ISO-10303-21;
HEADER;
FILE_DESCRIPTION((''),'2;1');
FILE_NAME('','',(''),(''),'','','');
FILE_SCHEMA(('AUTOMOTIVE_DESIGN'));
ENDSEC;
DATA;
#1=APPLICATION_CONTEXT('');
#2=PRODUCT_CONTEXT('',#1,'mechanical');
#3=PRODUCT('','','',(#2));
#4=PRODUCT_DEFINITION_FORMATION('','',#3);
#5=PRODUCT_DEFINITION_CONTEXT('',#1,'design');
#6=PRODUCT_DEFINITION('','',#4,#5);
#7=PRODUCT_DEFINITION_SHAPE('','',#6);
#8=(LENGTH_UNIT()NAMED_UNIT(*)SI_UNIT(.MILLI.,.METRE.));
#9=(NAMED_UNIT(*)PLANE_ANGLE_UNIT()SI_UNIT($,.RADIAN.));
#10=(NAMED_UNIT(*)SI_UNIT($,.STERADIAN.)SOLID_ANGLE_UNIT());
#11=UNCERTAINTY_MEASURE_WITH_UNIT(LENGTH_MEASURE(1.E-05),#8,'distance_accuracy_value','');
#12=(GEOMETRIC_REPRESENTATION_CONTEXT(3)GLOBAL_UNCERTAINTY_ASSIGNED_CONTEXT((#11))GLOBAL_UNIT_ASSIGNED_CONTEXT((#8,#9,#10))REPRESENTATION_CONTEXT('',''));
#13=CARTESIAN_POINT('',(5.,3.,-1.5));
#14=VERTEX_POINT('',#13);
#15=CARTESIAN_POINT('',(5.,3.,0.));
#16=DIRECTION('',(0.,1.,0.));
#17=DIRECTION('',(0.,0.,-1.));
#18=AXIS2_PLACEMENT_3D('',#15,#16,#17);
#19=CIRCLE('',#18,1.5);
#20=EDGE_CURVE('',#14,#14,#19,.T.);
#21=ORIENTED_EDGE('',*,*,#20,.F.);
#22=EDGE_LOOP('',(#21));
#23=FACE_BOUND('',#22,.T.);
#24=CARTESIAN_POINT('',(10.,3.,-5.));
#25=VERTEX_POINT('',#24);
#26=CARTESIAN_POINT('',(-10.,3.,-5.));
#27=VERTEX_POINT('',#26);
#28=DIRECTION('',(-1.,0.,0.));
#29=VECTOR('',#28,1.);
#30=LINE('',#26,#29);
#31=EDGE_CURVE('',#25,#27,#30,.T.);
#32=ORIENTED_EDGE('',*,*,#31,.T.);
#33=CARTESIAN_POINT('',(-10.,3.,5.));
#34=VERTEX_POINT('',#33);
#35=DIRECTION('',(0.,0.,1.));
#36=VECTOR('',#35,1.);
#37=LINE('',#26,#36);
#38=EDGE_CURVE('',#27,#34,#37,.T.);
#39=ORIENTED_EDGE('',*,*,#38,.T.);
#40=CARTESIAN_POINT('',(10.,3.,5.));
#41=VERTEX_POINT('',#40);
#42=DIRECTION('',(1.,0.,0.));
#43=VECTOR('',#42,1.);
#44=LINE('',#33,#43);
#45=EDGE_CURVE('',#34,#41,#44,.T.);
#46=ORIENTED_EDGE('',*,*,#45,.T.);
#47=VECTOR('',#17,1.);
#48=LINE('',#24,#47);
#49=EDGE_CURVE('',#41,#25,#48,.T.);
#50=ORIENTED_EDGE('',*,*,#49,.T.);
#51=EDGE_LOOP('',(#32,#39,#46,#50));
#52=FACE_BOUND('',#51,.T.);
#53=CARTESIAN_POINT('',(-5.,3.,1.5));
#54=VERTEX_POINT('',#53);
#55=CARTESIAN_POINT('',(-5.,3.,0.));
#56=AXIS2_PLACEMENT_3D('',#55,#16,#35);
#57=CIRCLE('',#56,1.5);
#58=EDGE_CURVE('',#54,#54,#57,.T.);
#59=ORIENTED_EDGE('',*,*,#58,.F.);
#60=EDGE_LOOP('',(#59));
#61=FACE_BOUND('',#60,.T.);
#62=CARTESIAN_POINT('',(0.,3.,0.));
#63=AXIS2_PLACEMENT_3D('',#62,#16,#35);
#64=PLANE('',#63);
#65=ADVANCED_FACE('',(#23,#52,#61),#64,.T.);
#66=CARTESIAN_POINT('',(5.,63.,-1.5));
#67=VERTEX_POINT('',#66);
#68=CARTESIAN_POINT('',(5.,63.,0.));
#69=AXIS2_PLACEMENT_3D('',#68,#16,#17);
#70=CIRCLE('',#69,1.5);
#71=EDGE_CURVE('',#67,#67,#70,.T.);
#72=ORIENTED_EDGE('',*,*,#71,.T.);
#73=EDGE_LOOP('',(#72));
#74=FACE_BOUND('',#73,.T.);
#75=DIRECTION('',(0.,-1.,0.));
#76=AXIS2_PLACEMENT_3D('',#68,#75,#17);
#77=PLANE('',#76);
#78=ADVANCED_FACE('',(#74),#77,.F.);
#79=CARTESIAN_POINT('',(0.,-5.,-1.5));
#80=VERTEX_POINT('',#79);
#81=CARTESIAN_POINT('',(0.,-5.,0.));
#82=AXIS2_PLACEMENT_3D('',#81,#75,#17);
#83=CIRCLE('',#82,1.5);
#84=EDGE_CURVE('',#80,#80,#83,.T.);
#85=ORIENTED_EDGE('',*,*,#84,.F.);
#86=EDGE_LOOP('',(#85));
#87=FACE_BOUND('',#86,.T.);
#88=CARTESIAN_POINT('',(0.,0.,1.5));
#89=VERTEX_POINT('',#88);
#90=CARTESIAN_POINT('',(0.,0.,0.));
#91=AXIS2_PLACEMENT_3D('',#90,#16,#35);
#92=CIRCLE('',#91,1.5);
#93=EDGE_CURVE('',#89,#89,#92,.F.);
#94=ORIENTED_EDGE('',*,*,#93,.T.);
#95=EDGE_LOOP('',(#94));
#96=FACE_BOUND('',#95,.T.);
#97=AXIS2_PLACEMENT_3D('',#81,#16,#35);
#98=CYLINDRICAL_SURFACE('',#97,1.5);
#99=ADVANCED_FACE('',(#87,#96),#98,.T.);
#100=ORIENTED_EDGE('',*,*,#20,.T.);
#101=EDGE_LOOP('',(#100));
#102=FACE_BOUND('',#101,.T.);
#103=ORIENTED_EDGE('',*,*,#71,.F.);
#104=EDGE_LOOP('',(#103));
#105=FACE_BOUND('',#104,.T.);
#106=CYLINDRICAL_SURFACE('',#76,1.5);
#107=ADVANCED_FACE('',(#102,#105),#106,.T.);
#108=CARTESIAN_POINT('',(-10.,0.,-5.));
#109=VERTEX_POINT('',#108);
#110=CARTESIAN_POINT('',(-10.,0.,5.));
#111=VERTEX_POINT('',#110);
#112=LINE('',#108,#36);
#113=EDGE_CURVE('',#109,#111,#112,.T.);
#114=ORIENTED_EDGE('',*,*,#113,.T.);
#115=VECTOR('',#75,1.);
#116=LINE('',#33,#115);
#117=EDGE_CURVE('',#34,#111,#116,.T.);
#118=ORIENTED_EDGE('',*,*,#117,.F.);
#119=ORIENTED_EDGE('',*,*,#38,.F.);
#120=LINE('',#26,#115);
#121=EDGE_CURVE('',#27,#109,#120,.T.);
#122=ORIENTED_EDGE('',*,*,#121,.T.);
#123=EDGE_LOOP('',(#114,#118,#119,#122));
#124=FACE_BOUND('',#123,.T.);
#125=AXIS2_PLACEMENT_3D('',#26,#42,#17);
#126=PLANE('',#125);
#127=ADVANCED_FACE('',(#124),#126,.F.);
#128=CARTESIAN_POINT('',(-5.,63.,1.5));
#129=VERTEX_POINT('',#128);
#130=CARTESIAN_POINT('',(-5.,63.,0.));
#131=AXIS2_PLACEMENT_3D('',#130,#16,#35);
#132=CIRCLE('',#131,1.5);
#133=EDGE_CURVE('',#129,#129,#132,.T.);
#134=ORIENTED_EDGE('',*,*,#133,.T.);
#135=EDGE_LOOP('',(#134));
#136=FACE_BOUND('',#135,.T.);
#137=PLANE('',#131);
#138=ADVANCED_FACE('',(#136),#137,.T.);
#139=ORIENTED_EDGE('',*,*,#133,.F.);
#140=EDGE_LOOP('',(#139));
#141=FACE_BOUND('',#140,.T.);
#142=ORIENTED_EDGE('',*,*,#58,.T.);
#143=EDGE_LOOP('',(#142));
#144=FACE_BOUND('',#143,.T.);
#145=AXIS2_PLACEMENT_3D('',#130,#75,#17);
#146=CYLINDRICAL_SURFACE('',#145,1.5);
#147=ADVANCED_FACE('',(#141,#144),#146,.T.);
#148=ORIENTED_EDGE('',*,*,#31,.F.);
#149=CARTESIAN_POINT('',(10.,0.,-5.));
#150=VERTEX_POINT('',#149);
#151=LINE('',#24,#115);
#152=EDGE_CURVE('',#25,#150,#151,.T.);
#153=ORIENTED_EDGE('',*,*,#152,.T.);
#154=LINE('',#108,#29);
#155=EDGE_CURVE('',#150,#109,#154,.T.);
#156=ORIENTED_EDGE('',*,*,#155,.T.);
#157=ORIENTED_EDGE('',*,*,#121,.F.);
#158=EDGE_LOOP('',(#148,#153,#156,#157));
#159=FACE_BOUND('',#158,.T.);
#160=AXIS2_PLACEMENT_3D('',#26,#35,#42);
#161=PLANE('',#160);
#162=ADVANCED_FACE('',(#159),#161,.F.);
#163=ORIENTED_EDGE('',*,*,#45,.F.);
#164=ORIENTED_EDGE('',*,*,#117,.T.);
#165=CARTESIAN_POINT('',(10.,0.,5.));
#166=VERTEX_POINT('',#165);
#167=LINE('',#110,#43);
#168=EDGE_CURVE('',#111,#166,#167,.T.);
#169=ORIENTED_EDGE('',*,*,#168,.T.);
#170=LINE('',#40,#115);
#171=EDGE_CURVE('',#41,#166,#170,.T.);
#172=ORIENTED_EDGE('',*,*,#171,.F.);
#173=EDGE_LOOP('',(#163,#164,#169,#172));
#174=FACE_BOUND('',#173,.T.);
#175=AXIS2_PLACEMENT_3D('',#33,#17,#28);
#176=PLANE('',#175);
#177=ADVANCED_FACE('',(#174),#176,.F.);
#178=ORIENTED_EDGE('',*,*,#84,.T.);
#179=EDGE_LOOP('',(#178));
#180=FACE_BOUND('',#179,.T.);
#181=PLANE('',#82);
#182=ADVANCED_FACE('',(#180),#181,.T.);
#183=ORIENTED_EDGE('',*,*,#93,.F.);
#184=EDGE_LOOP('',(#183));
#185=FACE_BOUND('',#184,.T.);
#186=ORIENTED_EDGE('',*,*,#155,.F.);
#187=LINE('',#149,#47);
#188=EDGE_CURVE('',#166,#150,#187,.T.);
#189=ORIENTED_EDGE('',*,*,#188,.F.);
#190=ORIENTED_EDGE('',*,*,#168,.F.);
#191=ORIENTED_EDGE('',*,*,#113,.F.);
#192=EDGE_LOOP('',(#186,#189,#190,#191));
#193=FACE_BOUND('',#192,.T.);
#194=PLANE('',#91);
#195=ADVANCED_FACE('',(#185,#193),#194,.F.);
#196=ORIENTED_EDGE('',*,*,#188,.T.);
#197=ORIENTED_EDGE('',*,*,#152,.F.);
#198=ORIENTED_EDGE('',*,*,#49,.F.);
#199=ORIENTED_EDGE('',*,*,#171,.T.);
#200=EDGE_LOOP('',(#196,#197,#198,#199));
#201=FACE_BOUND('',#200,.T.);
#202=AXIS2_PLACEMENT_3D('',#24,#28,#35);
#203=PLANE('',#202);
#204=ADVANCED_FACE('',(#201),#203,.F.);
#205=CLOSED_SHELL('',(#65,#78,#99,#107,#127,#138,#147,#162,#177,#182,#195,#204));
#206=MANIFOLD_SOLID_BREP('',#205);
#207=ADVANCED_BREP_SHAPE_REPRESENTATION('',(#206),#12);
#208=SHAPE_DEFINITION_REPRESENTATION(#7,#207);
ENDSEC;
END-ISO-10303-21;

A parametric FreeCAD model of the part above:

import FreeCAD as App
import Part
import Sketcher

doc = App.newDocument("Part")
body = doc.addObject("PartDesign::Body", "Body")

# Sketch on XZ plane
sketch1 = body.newObject("Sketcher::SketchObject", "Sketch")
sketch1.AttachmentSupport = (doc.getObject("XZ_Plane"), [""])
sketch1.MapMode = "FlatFace"
sketch1.addGeometry([
    Part.LineSegment(App.Vector(-10, -5, 0), App.Vector(-10, 5, 0)),
    Part.LineSegment(App.Vector(-10, 5, 0), App.Vector(10, 5, 0)),
    Part.LineSegment(App.Vector(10, 5, 0), App.Vector(10, -5, 0)),
    Part.LineSegment(App.Vector(10, -5, 0), App.Vector(-10, -5, 0)),
], False)
sketch1.addConstraint([
    Sketcher.Constraint("Coincident", 0, 2, 1, 1),
    Sketcher.Constraint("Coincident", 1, 2, 2, 1),
    Sketcher.Constraint("Coincident", 2, 2, 3, 1),
    Sketcher.Constraint("Coincident", 3, 2, 0, 1),
    Sketcher.Constraint("Vertical", 0),
    Sketcher.Constraint("Horizontal", 1),
    Sketcher.Constraint("Vertical", 2),
    Sketcher.Constraint("Horizontal", 3),
    Sketcher.Constraint("Symmetric", 0, 2, 2, 2, -1, 1),
    Sketcher.Constraint("DistanceX", 1, 1, 1, 2, 20.0),
    Sketcher.Constraint("DistanceY", 0, 1, 0, 2, 10.0),
])
pad1 = body.newObject("PartDesign::Pad", "Pad")
pad1.Profile = sketch1
pad1.Length = 3
pad1.Reversed = True

# Sketch on XZ plane
sketch2 = body.newObject("Sketcher::SketchObject", "Sketch001")
sketch2.AttachmentSupport = (doc.getObject("XZ_Plane"), [""])
sketch2.MapMode = "FlatFace"
sketch2.AttachmentOffset = App.Placement(App.Vector(0, 0, -3), App.Rotation())
sketch2.addGeometry([
    Part.Circle(App.Vector(-5, 0, 0), App.Vector(0, 0, 1), 1.5),
    Part.Circle(App.Vector(5, 0, 0), App.Vector(0, 0, 1), 1.5),
], False)
sketch2.addConstraint([
    Sketcher.Constraint("Equal", 0, 1),
    Sketcher.Constraint("Symmetric", 0, 3, 1, 3, -1, 1),
    Sketcher.Constraint("PointOnObject", 0, 3, -1),
    Sketcher.Constraint("Diameter", 0, 3.0),
    Sketcher.Constraint("DistanceX", 0, 3, -1, 1, 5.0),
])
pad2 = body.newObject("PartDesign::Pad", "Pad001")
pad2.Profile = sketch2
pad2.Length = 60
pad2.Reversed = True

# Sketch on XZ plane
sketch3 = body.newObject("Sketcher::SketchObject", "Sketch002")
sketch3.AttachmentSupport = (doc.getObject("XZ_Plane"), [""])
sketch3.MapMode = "FlatFace"
sketch3.addGeometry(Part.Circle(App.Vector(0, 0, 0), App.Vector(0, 0, 1), 1.5), False)
sketch3.addConstraint([
    Sketcher.Constraint("Coincident", 0, 3, -1, 1),
    Sketcher.Constraint("Diameter", 0, 3.0),
])
pad3 = body.newObject("PartDesign::Pad", "Pad002")
pad3.Profile = sketch3
pad3.Length = 5

doc.recompute()
